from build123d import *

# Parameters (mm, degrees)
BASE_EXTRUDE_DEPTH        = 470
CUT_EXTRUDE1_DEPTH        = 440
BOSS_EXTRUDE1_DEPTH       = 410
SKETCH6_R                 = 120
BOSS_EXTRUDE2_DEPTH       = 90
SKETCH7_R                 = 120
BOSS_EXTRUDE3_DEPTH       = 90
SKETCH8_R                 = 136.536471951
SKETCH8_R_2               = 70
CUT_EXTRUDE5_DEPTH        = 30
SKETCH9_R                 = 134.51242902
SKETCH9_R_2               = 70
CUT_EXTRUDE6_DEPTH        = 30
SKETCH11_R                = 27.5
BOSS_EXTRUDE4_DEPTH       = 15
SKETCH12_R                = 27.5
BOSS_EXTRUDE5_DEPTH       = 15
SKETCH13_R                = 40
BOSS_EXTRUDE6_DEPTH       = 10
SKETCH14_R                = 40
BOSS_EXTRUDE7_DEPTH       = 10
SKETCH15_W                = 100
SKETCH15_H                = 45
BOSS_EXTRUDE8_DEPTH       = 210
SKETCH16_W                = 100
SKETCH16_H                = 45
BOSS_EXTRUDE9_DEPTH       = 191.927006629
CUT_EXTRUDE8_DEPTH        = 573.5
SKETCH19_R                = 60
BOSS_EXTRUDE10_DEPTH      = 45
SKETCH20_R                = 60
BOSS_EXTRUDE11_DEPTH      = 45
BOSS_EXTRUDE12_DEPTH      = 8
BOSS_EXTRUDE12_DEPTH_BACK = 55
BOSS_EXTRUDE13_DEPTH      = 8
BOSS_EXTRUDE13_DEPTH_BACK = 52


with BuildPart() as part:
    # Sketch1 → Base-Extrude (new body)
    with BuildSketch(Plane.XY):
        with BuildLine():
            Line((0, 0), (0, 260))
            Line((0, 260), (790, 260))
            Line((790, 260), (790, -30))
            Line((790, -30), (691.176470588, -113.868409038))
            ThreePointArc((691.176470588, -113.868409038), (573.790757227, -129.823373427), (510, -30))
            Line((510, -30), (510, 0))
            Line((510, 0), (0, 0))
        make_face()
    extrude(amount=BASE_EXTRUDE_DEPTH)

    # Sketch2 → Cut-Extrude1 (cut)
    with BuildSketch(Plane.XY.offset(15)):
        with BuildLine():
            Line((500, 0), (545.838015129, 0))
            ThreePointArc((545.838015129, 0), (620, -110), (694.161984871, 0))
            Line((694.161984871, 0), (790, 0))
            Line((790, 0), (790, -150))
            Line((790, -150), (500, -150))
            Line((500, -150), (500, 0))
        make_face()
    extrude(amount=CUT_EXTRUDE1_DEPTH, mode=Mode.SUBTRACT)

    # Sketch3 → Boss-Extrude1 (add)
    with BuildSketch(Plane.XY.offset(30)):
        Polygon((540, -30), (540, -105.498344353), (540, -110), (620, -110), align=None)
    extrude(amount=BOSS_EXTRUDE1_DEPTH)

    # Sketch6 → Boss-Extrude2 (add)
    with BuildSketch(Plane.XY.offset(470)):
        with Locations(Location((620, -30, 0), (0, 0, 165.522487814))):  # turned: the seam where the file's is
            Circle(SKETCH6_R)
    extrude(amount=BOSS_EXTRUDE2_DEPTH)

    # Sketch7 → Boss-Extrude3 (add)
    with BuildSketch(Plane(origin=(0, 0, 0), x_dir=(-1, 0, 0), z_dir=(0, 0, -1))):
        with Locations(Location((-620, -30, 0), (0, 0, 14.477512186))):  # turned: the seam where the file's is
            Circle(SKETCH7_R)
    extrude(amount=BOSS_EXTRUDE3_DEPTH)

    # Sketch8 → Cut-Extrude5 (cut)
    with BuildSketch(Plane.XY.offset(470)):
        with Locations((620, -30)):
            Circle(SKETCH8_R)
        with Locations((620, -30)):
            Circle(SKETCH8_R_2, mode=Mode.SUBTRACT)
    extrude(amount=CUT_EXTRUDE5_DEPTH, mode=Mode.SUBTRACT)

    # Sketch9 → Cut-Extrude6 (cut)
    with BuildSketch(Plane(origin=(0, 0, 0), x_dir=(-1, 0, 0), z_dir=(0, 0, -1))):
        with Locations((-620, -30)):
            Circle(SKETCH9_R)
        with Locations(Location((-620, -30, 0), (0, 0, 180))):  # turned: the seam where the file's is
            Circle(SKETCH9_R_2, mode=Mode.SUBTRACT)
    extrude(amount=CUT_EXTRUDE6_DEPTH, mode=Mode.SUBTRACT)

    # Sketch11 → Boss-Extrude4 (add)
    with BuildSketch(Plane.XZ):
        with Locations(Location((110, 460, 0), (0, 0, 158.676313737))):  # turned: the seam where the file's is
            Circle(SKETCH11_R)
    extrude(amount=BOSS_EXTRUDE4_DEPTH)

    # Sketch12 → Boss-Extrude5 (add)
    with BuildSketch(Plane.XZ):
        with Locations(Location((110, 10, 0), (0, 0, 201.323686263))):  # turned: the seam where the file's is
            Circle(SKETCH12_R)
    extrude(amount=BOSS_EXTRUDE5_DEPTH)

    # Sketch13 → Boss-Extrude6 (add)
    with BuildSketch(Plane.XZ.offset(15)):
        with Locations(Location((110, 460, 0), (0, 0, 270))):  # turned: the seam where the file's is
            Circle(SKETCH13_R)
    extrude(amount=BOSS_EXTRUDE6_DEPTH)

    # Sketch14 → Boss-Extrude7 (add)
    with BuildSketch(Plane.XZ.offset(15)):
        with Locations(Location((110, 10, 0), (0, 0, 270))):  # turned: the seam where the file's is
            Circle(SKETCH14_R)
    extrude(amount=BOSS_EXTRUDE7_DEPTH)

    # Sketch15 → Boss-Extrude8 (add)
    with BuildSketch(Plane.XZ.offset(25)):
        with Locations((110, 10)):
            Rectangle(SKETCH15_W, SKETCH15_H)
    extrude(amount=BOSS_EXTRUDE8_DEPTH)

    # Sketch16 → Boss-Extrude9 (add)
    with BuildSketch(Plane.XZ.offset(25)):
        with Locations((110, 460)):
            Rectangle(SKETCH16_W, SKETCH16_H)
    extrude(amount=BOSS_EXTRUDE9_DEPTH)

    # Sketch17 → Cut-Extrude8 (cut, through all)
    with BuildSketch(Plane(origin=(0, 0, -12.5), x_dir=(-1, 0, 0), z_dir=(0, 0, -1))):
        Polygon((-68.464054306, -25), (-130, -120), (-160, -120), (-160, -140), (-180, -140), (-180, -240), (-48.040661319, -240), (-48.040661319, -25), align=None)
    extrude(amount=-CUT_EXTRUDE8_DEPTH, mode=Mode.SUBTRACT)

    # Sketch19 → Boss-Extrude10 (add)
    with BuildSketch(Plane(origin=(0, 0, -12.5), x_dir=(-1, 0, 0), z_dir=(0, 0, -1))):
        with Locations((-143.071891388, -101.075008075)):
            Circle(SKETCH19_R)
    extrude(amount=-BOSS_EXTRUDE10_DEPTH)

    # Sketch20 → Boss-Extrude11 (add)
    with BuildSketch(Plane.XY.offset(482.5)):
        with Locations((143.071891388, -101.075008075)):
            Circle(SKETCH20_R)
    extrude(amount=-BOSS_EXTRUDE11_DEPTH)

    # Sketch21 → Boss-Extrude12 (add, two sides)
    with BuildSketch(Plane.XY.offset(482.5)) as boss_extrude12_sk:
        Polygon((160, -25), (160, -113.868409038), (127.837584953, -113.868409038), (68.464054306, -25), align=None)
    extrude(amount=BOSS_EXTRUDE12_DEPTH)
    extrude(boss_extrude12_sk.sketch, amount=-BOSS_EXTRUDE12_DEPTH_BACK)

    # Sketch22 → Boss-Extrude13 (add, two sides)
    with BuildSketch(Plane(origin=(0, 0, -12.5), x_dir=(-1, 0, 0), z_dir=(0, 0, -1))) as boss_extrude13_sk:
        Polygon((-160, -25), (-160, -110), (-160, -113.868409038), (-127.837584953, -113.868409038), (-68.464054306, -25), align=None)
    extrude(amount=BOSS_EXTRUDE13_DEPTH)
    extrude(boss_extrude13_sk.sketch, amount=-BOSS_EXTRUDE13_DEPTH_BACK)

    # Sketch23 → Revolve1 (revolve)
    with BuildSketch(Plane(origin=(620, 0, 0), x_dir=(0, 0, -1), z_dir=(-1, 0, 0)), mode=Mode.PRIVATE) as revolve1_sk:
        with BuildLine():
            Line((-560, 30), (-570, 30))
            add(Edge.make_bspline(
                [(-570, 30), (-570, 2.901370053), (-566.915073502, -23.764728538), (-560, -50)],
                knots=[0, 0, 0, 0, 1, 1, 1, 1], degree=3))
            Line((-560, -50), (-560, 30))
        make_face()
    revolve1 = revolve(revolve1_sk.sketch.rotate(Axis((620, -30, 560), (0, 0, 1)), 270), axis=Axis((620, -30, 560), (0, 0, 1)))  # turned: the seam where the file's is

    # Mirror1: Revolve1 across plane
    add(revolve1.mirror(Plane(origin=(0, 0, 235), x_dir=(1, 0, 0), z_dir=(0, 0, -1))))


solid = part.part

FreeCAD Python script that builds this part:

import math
import FreeCAD as App
import Part
import Sketcher

V = App.Vector

doc = App.newDocument("Part")
body = doc.addObject("PartDesign::Body", "Body")

# Sketch on XY plane
sketch1 = doc.addObject("Sketcher::SketchObject", "Sketch")
body.addObject(sketch1)
sketch1.AttachmentSupport = (doc.XY_Plane, [""])
sketch1.MapMode = "FlatFace"
sketch1.addGeometry(Part.LineSegment(V(0, 260, 0), V(0, 0, 0)), False)
sketch1.addGeometry(Part.LineSegment(V(0, 0, 0), V(510, 0, 0)), False)
sketch1.addGeometry(Part.LineSegment(V(510, 0, 0), V(510, -30, 0)), False)
sketch1.addGeometry(Part.ArcOfCircle(Part.Circle(V(620, -30, 0), V(0, 0, 1), 110), math.radians(180), math.radians(310)), False)
sketch1.addGeometry(Part.LineSegment(V(691, -114, 0), V(790, -30, 0)), False)
sketch1.addGeometry(Part.LineSegment(V(790, -30, 0), V(790, 260, 0)), False)
sketch1.addGeometry(Part.LineSegment(V(790, 260, 0), V(0, 260, 0)), False)
sketch1.addConstraint(Sketcher.Constraint("Coincident", 0, 2, 1, 1))
sketch1.addConstraint(Sketcher.Constraint("Coincident", 1, 2, 2, 1))
sketch1.addConstraint(Sketcher.Constraint("Tangent", 2, 2, 3, 1))
sketch1.addConstraint(Sketcher.Constraint("Tangent", 3, 2, 4, 1))
sketch1.addConstraint(Sketcher.Constraint("Coincident", 4, 2, 5, 1))
sketch1.addConstraint(Sketcher.Constraint("Coincident", 5, 2, 6, 1))
sketch1.addConstraint(Sketcher.Constraint("Coincident", 6, 2, 0, 1))
sketch1.addConstraint(Sketcher.Constraint("Vertical", 0))
sketch1.addConstraint(Sketcher.Constraint("Horizontal", 1))
sketch1.addConstraint(Sketcher.Constraint("Vertical", 2))
sketch1.addConstraint(Sketcher.Constraint("Vertical", 5))
sketch1.addConstraint(Sketcher.Constraint("Horizontal", 6))
sketch1.addConstraint(Sketcher.Constraint("Coincident", 0, 2, -1, 1))
sketch1.addConstraint(Sketcher.Constraint("Horizontal", 2, 2, 4, 2))
sketch1.addConstraint(Sketcher.Constraint("Radius", 3, 110.0))
sketch1.addConstraint(Sketcher.Constraint("DistanceX", 1, 1, 1, 2, 510.0))
sketch1.addConstraint(Sketcher.Constraint("DistanceX", 6, 2, 6, 1, 790.0))
sketch1.addConstraint(Sketcher.Constraint("DistanceY", 0, 2, 0, 1, 260.0))
sketch1.addConstraint(Sketcher.Constraint("DistanceY", 2, 2, 2, 1, 30.0))
pad1 = doc.addObject("PartDesign::Pad", "Pad")
body.addObject(pad1)
pad1.Profile = sketch1
pad1.Length = 470

# Sketch on XY plane
sketch2 = doc.addObject("Sketcher::SketchObject", "Sketch001")
body.addObject(sketch2)
sketch2.AttachmentSupport = (doc.XY_Plane, [""])
sketch2.MapMode = "FlatFace"
sketch2.AttachmentOffset = App.Placement(V(0, 0, 15), App.Rotation())
sketch2.addGeometry(Part.LineSegment(V(546, 0, 0), V(500, 0, 0)), False)
sketch2.addGeometry(Part.LineSegment(V(500, 0, 0), V(500, -150, 0)), False)
sketch2.addGeometry(Part.LineSegment(V(500, -150, 0), V(790, -150, 0)), False)
sketch2.addGeometry(Part.LineSegment(V(790, -150, 0), V(790, 0, 0)), False)
sketch2.addGeometry(Part.LineSegment(V(790, 0, 0), V(694, 0, 0)), False)
sketch2.addGeometry(Part.ArcOfCircle(Part.Circle(V(620, -30, 0), V(0, 0, 1), 80), math.radians(158), math.radians(382)), False)
sketch2.addConstraint(Sketcher.Constraint("Coincident", 0, 2, 1, 1))
sketch2.addConstraint(Sketcher.Constraint("Coincident", 1, 2, 2, 1))
sketch2.addConstraint(Sketcher.Constraint("Coincident", 2, 2, 3, 1))
sketch2.addConstraint(Sketcher.Constraint("Coincident", 3, 2, 4, 1))
sketch2.addConstraint(Sketcher.Constraint("Coincident", 4, 2, 5, 2))
sketch2.addConstraint(Sketcher.Constraint("Coincident", 5, 1, 0, 1))
sketch2.addConstraint(Sketcher.Constraint("Horizontal", 0))
sketch2.addConstraint(Sketcher.Constraint("Vertical", 1))
sketch2.addConstraint(Sketcher.Constraint("Horizontal", 2))
sketch2.addConstraint(Sketcher.Constraint("Vertical", 3))
sketch2.addConstraint(Sketcher.Constraint("Horizontal", 4))
sketch2.addConstraint(Sketcher.Constraint("PointOnObject", 0, 2, -1))
sketch2.addConstraint(Sketcher.Constraint("PointOnObject", 3, 2, -1))
sketch2.addConstraint(Sketcher.Constraint("Radius", 5, 80.0))
sketch2.addConstraint(Sketcher.Constraint("DistanceX", 2, 1, 2, 2, 290.0))
sketch2.addConstraint(Sketcher.Constraint("DistanceY", 1, 2, 1, 1, 150.0))
sketch2.addConstraint(Sketcher.Constraint("DistanceX", -1, 1, 5, 3, 620.0))
sketch2.addConstraint(Sketcher.Constraint("DistanceY", 5, 3, -1, 1, 30.0))
sketch2.addConstraint(Sketcher.Constraint("DistanceX", -1, 1, 0, 2, 500.0))
pocket1 = doc.addObject("PartDesign::Pocket", "Pocket")
body.addObject(pocket1)
pocket1.Profile = sketch2
pocket1.Length = 440
pocket1.Reversed = True

# Sketch on XY plane
sketch3 = doc.addObject("Sketcher::SketchObject", "Sketch002")
body.addObject(sketch3)
sketch3.AttachmentSupport = (doc.XY_Plane, [""])
sketch3.MapMode = "FlatFace"
sketch3.AttachmentOffset = App.Placement(V(0, 0, 30), App.Rotation())
sketch3.addGeometry(Part.LineSegment(V(540, -30, 0), V(540, -110, 0)), False)
sketch3.addGeometry(Part.LineSegment(V(540, -110, 0), V(620, -110, 0)), False)
sketch3.addGeometry(Part.LineSegment(V(620, -110, 0), V(540, -30, 0)), False)
sketch3.addConstraint(Sketcher.Constraint("Coincident", 0, 2, 1, 1))
sketch3.addConstraint(Sketcher.Constraint("Coincident", 1, 2, 2, 1))
sketch3.addConstraint(Sketcher.Constraint("Coincident", 2, 2, 0, 1))
sketch3.addConstraint(Sketcher.Constraint("Vertical", 0))
sketch3.addConstraint(Sketcher.Constraint("Horizontal", 1))
sketch3.addConstraint(Sketcher.Constraint("Equal", 1, 0))
sketch3.addConstraint(Sketcher.Constraint("DistanceX", 1, 1, 1, 2, 80.0))
sketch3.addConstraint(Sketcher.Constraint("DistanceX", -1, 1, 0, 2, 540.0))
sketch3.addConstraint(Sketcher.Constraint("DistanceY", 0, 2, -1, 1, 110.0))
pad2 = doc.addObject("PartDesign::Pad", "Pad001")
body.addObject(pad2)
pad2.Profile = sketch3
pad2.Length = 410

# Sketch on XY plane
sketch4 = doc.addObject("Sketcher::SketchObject", "Sketch003")
body.addObject(sketch4)
sketch4.AttachmentSupport = (doc.XY_Plane, [""])
sketch4.MapMode = "FlatFace"
sketch4.AttachmentOffset = App.Placement(V(0, 0, 470), App.Rotation())
sketch4.addGeometry(Part.Circle(V(620, -30, 0), V(0, 0, 1), 120), False)
sketch4.addConstraint(Sketcher.Constraint("Diameter", 0, 240.0))
sketch4.addConstraint(Sketcher.Constraint("DistanceX", -1, 1, 0, 3, 620.0))
sketch4.addConstraint(Sketcher.Constraint("DistanceY", 0, 3, -1, 1, 30.0))
pad3 = doc.addObject("PartDesign::Pad", "Pad002")
body.addObject(pad3)
pad3.Profile = sketch4
pad3.Length = 90

# Sketch on XY plane
sketch5 = doc.addObject("Sketcher::SketchObject", "Sketch004")
body.addObject(sketch5)
sketch5.AttachmentSupport = (doc.XY_Plane, [""])
sketch5.MapMode = "FlatFace"
sketch5.addGeometry(Part.Circle(V(620, -30, 0), V(0, 0, 1), 120), False)
sketch5.addConstraint(Sketcher.Constraint("Diameter", 0, 240.0))
sketch5.addConstraint(Sketcher.Constraint("DistanceX", -1, 1, 0, 3, 620.0))
sketch5.addConstraint(Sketcher.Constraint("DistanceY", 0, 3, -1, 1, 30.0))
pad4 = doc.addObject("PartDesign::Pad", "Pad003")
body.addObject(pad4)
pad4.Profile = sketch5
pad4.Length = 90
pad4.Reversed = True

# Sketch on XY plane
sketch6 = doc.addObject("Sketcher::SketchObject", "Sketch005")
body.addObject(sketch6)
sketch6.AttachmentSupport = (doc.XY_Plane, [""])
sketch6.MapMode = "FlatFace"
sketch6.AttachmentOffset = App.Placement(V(0, 0, 470), App.Rotation())
sketch6.addGeometry(Part.Circle(V(620, -30, 0), V(0, 0, 1), 137), False)
sketch6.addGeometry(Part.Circle(V(620, -30, 0), V(0, 0, 1), 70), False)
sketch6.addConstraint(Sketcher.Constraint("Coincident", 1, 3, 0, 3))
sketch6.addConstraint(Sketcher.Constraint("Diameter", 1, 140.0))
sketch6.addConstraint(Sketcher.Constraint("DistanceX", -1, 1, 0, 3, 620.0))
sketch6.addConstraint(Sketcher.Constraint("DistanceY", 0, 3, -1, 1, 30.0))
sketch6.addConstraint(Sketcher.Constraint("Diameter", 0, 273.072944))
pocket2 = doc.addObject("PartDesign::Pocket", "Pocket001")
body.addObject(pocket2)
pocket2.Profile = sketch6
pocket2.Length = 30
pocket2.Reversed = True

# Sketch on XY plane
sketch7 = doc.addObject("Sketcher::SketchObject", "Sketch006")
body.addObject(sketch7)
sketch7.AttachmentSupport = (doc.XY_Plane, [""])
sketch7.MapMode = "FlatFace"
sketch7.addGeometry(Part.Circle(V(620, -30, 0), V(0, 0, 1), 135), False)
sketch7.addGeometry(Part.Circle(V(620, -30, 0), V(0, 0, 1), 70), False)
sketch7.addConstraint(Sketcher.Constraint("Coincident", 1, 3, 0, 3))
sketch7.addConstraint(Sketcher.Constraint("Diameter", 1, 140.0))
sketch7.addConstraint(Sketcher.Constraint("DistanceX", -1, 1, 0, 3, 620.0))
sketch7.addConstraint(Sketcher.Constraint("DistanceY", 0, 3, -1, 1, 30.0))
sketch7.addConstraint(Sketcher.Constraint("Diameter", 0, 269.024858))
pocket3 = doc.addObject("PartDesign::Pocket", "Pocket002")
body.addObject(pocket3)
pocket3.Profile = sketch7
pocket3.Length = 30

# Sketch on XZ plane
sketch8 = doc.addObject("Sketcher::SketchObject", "Sketch007")
body.addObject(sketch8)
sketch8.AttachmentSupport = (doc.XZ_Plane, [""])
sketch8.MapMode = "FlatFace"
sketch8.addGeometry(Part.Circle(V(110, 460, 0), V(0, 0, 1), 28), False)
sketch8.addConstraint(Sketcher.Constraint("Diameter", 0, 55.0))
sketch8.addConstraint(Sketcher.Constraint("DistanceX", -1, 1, 0, 3, 110.0))
sketch8.addConstraint(Sketcher.Constraint("DistanceY", -1, 1, 0, 3, 460.0))
pad5 = doc.addObject("PartDesign::Pad", "Pad004")
body.addObject(pad5)
pad5.Profile = sketch8
pad5.Length = 15

# Sketch on XZ plane
sketch9 = doc.addObject("Sketcher::SketchObject", "Sketch008")
body.addObject(sketch9)
sketch9.AttachmentSupport = (doc.XZ_Plane, [""])
sketch9.MapMode = "FlatFace"
sketch9.addGeometry(Part.Circle(V(110, 10, 0), V(0, 0, 1), 28), False)
sketch9.addConstraint(Sketcher.Constraint("Diameter", 0, 55.0))
sketch9.addConstraint(Sketcher.Constraint("DistanceX", -1, 1, 0, 3, 110.0))
sketch9.addConstraint(Sketcher.Constraint("DistanceY", -1, 1, 0, 3, 10.0))
pad6 = doc.addObject("PartDesign::Pad", "Pad005")
body.addObject(pad6)
pad6.Profile = sketch9
pad6.Length = 15

# Sketch on XZ plane
sketch10 = doc.addObject("Sketcher::SketchObject", "Sketch009")
body.addObject(sketch10)
sketch10.AttachmentSupport = (doc.XZ_Plane, [""])
sketch10.MapMode = "FlatFace"
sketch10.AttachmentOffset = App.Placement(V(0, 0, 15), App.Rotation())
sketch10.addGeometry(Part.Circle(V(110, 460, 0), V(0, 0, 1), 40), False)
sketch10.addConstraint(Sketcher.Constraint("Diameter", 0, 80.0))
sketch10.addConstraint(Sketcher.Constraint("DistanceX", -1, 1, 0, 3, 110.0))
sketch10.addConstraint(Sketcher.Constraint("DistanceY", -1, 1, 0, 3, 460.0))
pad7 = doc.addObject("PartDesign::Pad", "Pad006")
body.addObject(pad7)
pad7.Profile = sketch10
pad7.Length = 10

# Sketch on XZ plane
sketch11 = doc.addObject("Sketcher::SketchObject", "Sketch010")
body.addObject(sketch11)
sketch11.AttachmentSupport = (doc.XZ_Plane, [""])
sketch11.MapMode = "FlatFace"
sketch11.AttachmentOffset = App.Placement(V(0, 0, 15), App.Rotation())
sketch11.addGeometry(Part.Circle(V(110, 10, 0), V(0, 0, 1), 40), False)
sketch11.addConstraint(Sketcher.Constraint("Diameter", 0, 80.0))
sketch11.addConstraint(Sketcher.Constraint("DistanceX", -1, 1, 0, 3, 110.0))
sketch11.addConstraint(Sketcher.Constraint("DistanceY", -1, 1, 0, 3, 10.0))
pad8 = doc.addObject("PartDesign::Pad", "Pad007")
body.addObject(pad8)
pad8.Profile = sketch11
pad8.Length = 10

# Sketch on XZ plane
sketch12 = doc.addObject("Sketcher::SketchObject", "Sketch011")
body.addObject(sketch12)
sketch12.AttachmentSupport = (doc.XZ_Plane, [""])
sketch12.MapMode = "FlatFace"
sketch12.AttachmentOffset = App.Placement(V(0, 0, 25), App.Rotation())
sketch12.addGeometry(Part.LineSegment(V(60, 32, 0), V(60, -12, 0)), False)
sketch12.addGeometry(Part.LineSegment(V(60, -12, 0), V(160, -12, 0)), False)
sketch12.addGeometry(Part.LineSegment(V(160, -12, 0), V(160, 32, 0)), False)
sketch12.addGeometry(Part.LineSegment(V(160, 32, 0), V(60, 32, 0)), False)
sketch12.addConstraint(Sketcher.Constraint("Coincident", 0, 2, 1, 1))
sketch12.addConstraint(Sketcher.Constraint("Coincident", 1, 2, 2, 1))
sketch12.addConstraint(Sketcher.Constraint("Coincident", 2, 2, 3, 1))
sketch12.addConstraint(Sketcher.Constraint("Coincident", 3, 2, 0, 1))
sketch12.addConstraint(Sketcher.Constraint("Vertical", 0))
sketch12.addConstraint(Sketcher.Constraint("Horizontal", 1))
sketch12.addConstraint(Sketcher.Constraint("Vertical", 2))
sketch12.addConstraint(Sketcher.Constraint("Horizontal", 3))
sketch12.addConstraint(Sketcher.Constraint("DistanceX", 1, 1, 1, 2, 100.0))
sketch12.addConstraint(Sketcher.Constraint("DistanceY", 0, 2, 0, 1, 45.0))
sketch12.addConstraint(Sketcher.Constraint("DistanceX", -1, 1, 0, 2, 60.0))
sketch12.addConstraint(Sketcher.Constraint("DistanceY", 0, 2, -1, 1, 12.5))
pad9 = doc.addObject("PartDesign::Pad", "Pad008")
body.addObject(pad9)
pad9.Profile = sketch12
pad9.Length = 210

# Sketch on XZ plane
sketch13 = doc.addObject("Sketcher::SketchObject", "Sketch012")
body.addObject(sketch13)
sketch13.AttachmentSupport = (doc.XZ_Plane, [""])
sketch13.MapMode = "FlatFace"
sketch13.AttachmentOffset = App.Placement(V(0, 0, 25), App.Rotation())
sketch13.addGeometry(Part.LineSegment(V(60, 482, 0), V(60, 438, 0)), False)
sketch13.addGeometry(Part.LineSegment(V(60, 438, 0), V(160, 438, 0)), False)
sketch13.addGeometry(Part.LineSegment(V(160, 438, 0), V(160, 482, 0)), False)
sketch13.addGeometry(Part.LineSegment(V(160, 482, 0), V(60, 482, 0)), False)
sketch13.addConstraint(Sketcher.Constraint("Coincident", 0, 2, 1, 1))
sketch13.addConstraint(Sketcher.Constraint("Coincident", 1, 2, 2, 1))
sketch13.addConstraint(Sketcher.Constraint("Coincident", 2, 2, 3, 1))
sketch13.addConstraint(Sketcher.Constraint("Coincident", 3, 2, 0, 1))
sketch13.addConstraint(Sketcher.Constraint("Vertical", 0))
sketch13.addConstraint(Sketcher.Constraint("Horizontal", 1))
sketch13.addConstraint(Sketcher.Constraint("Vertical", 2))
sketch13.addConstraint(Sketcher.Constraint("Horizontal", 3))
sketch13.addConstraint(Sketcher.Constraint("DistanceX", 1, 1, 1, 2, 100.0))
sketch13.addConstraint(Sketcher.Constraint("DistanceY", 0, 2, 0, 1, 45.0))
sketch13.addConstraint(Sketcher.Constraint("DistanceX", -1, 1, 0, 2, 60.0))
sketch13.addConstraint(Sketcher.Constraint("DistanceY", -1, 1, 0, 2, 437.5))
pad10 = doc.addObject("PartDesign::Pad", "Pad009")
body.addObject(pad10)
pad10.Profile = sketch13
pad10.Length = 191.927007

# Sketch on XY plane
sketch14 = doc.addObject("Sketcher::SketchObject", "Sketch013")
body.addObject(sketch14)
sketch14.AttachmentSupport = (doc.XY_Plane, [""])
sketch14.MapMode = "FlatFace"
sketch14.AttachmentOffset = App.Placement(V(0, 0, -12.5), App.Rotation())
sketch14.addGeometry(Part.LineSegment(V(68, -25, 0), V(130, -120, 0)), False)
sketch14.addGeometry(Part.LineSegment(V(130, -120, 0), V(160, -120, 0)), False)
sketch14.addGeometry(Part.LineSegment(V(160, -120, 0), V(160, -140, 0)), False)
sketch14.addGeometry(Part.LineSegment(V(160, -140, 0), V(180, -140, 0)), False)
sketch14.addGeometry(Part.LineSegment(V(180, -140, 0), V(180, -240, 0)), False)
sketch14.addGeometry(Part.LineSegment(V(180, -240, 0), V(48, -240, 0)), False)
sketch14.addGeometry(Part.LineSegment(V(48, -240, 0), V(48, -25, 0)), False)
sketch14.addGeometry(Part.LineSegment(V(48, -25, 0), V(68, -25, 0)), False)
sketch14.addConstraint(Sketcher.Constraint("Coincident", 0, 2, 1, 1))
sketch14.addConstraint(Sketcher.Constraint("Coincident", 1, 2, 2, 1))
sketch14.addConstraint(Sketcher.Constraint("Coincident", 2, 2, 3, 1))
sketch14.addConstraint(Sketcher.Constraint("Coincident", 3, 2, 4, 1))
sketch14.addConstraint(Sketcher.Constraint("Coincident", 4, 2, 5, 1))
sketch14.addConstraint(Sketcher.Constraint("Coincident", 5, 2, 6, 1))
sketch14.addConstraint(Sketcher.Constraint("Coincident", 6, 2, 7, 1))
sketch14.addConstraint(Sketcher.Constraint("Coincident", 7, 2, 0, 1))
sketch14.addConstraint(Sketcher.Constraint("Horizontal", 1))
sketch14.addConstraint(Sketcher.Constraint("Vertical", 2))
sketch14.addConstraint(Sketcher.Constraint("Horizontal", 3))
sketch14.addConstraint(Sketcher.Constraint("Vertical", 4))
sketch14.addConstraint(Sketcher.Constraint("Horizontal", 5))
sketch14.addConstraint(Sketcher.Constraint("Vertical", 6))
sketch14.addConstraint(Sketcher.Constraint("Horizontal", 7))
sketch14.addConstraint(Sketcher.Constraint("Equal", 3, 2))
sketch14.addConstraint(Sketcher.Constraint("DistanceX", 1, 1, 1, 2, 30.0))
sketch14.addConstraint(Sketcher.Constraint("DistanceX", 3, 1, 3, 2, 20.0))
sketch14.addConstraint(Sketcher.Constraint("DistanceY", 4, 2, 4, 1, 100.0))
sketch14.addConstraint(Sketcher.Constraint("DistanceY", 6, 1, 6, 2, 215.0))
sketch14.addConstraint(Sketcher.Constraint("DistanceX", -1, 1, 0, 2, 130.0))
sketch14.addConstraint(Sketcher.Constraint("DistanceY", 0, 2, -1, 1, 120.0))
sketch14.addConstraint(Sketcher.Constraint("DistanceX", 5, 2, 5, 1, 131.959339))
sketch14.addConstraint(Sketcher.Constraint("Distance", 0, 113.188659))
pocket4 = doc.addObject("PartDesign::Pocket", "Pocket003")
body.addObject(pocket4)
pocket4.Profile = sketch14
pocket4.Type = "ThroughAll"
pocket4.Reversed = True

# Sketch on XY plane
sketch15 = doc.addObject("Sketcher::SketchObject", "Sketch014")
body.addObject(sketch15)
sketch15.AttachmentSupport = (doc.XY_Plane, [""])
sketch15.MapMode = "FlatFace"
sketch15.AttachmentOffset = App.Placement(V(0, 0, -12.5), App.Rotation())
sketch15.addGeometry(Part.Circle(V(143, -101, 0), V(0, 0, 1), 60), False)
sketch15.addConstraint(Sketcher.Constraint("Diameter", 0, 120.0))
sketch15.addConstraint(Sketcher.Constraint("DistanceX", -1, 1, 0, 3, 143.071891))
sketch15.addConstraint(Sketcher.Constraint("DistanceY", 0, 3, -1, 1, 101.075008))
pad11 = doc.addObject("PartDesign::Pad", "Pad010")
body.addObject(pad11)
pad11.Profile = sketch15
pad11.Length = 45

# Sketch on XY plane
sketch16 = doc.addObject("Sketcher::SketchObject", "Sketch015")
body.addObject(sketch16)
sketch16.AttachmentSupport = (doc.XY_Plane, [""])
sketch16.MapMode = "FlatFace"
sketch16.AttachmentOffset = App.Placement(V(0, 0, 482.5), App.Rotation())
sketch16.addGeometry(Part.Circle(V(143, -101, 0), V(0, 0, 1), 60), False)
sketch16.addConstraint(Sketcher.Constraint("Diameter", 0, 120.0))
sketch16.addConstraint(Sketcher.Constraint("DistanceX", -1, 1, 0, 3, 143.071891))
sketch16.addConstraint(Sketcher.Constraint("DistanceY", 0, 3, -1, 1, 101.075008))
pad12 = doc.addObject("PartDesign::Pad", "Pad011")
body.addObject(pad12)
pad12.Profile = sketch16
pad12.Length = 45
pad12.Reversed = True

# Sketch on XY plane
sketch17 = doc.addObject("Sketcher::SketchObject", "Sketch016")
body.addObject(sketch17)
sketch17.AttachmentSupport = (doc.XY_Plane, [""])
sketch17.MapMode = "FlatFace"
sketch17.AttachmentOffset = App.Placement(V(0, 0, 482.5), App.Rotation())
sketch17.addGeometry(Part.LineSegment(V(160, -114, 0), V(160, -25, 0)), False)
sketch17.addGeometry(Part.LineSegment(V(160, -25, 0), V(68, -25, 0)), False)
sketch17.addGeometry(Part.LineSegment(V(68, -25, 0), V(128, -114, 0)), False)
sketch17.addGeometry(Part.LineSegment(V(128, -114, 0), V(160, -114, 0)), False)
sketch17.addConstraint(Sketcher.Constraint("Coincident", 0, 2, 1, 1))
sketch17.addConstraint(Sketcher.Constraint("Coincident", 1, 2, 2, 1))
sketch17.addConstraint(Sketcher.Constraint("Coincident", 2, 2, 3, 1))
sketch17.addConstraint(Sketcher.Constraint("Coincident", 3, 2, 0, 1))
sketch17.addConstraint(Sketcher.Constraint("Vertical", 0))
sketch17.addConstraint(Sketcher.Constraint("Horizontal", 1))
sketch17.addConstraint(Sketcher.Constraint("Horizontal", 3))
sketch17.addConstraint(Sketcher.Constraint("DistanceX", -1, 1, 0, 2, 160.0))
sketch17.addConstraint(Sketcher.Constraint("DistanceY", 0, 2, -1, 1, 25.0))
sketch17.addConstraint(Sketcher.Constraint("DistanceY", 0, 1, 0, 2, 88.868409))
sketch17.addConstraint(Sketcher.Constraint("DistanceX", 1, 2, 1, 1, 91.535946))
sketch17.addConstraint(Sketcher.Constraint("DistanceX", 3, 1, 3, 2, 32.162415))
pad13 = doc.addObject("PartDesign::Pad", "Pad012")
body.addObject(pad13)
pad13.Profile = sketch17
pad13.Type = "TwoLengths"
pad13.Length = 8
pad13.Length2 = 55

# Sketch on XY plane
sketch18 = doc.addObject("Sketcher::SketchObject", "Sketch017")
body.addObject(sketch18)
sketch18.AttachmentSupport = (doc.XY_Plane, [""])
sketch18.MapMode = "FlatFace"
sketch18.AttachmentOffset = App.Placement(V(0, 0, -12.5), App.Rotation())
sketch18.addGeometry(Part.LineSegment(V(160, -25, 0), V(160, -114, 0)), False)
sketch18.addGeometry(Part.LineSegment(V(160, -114, 0), V(128, -114, 0)), False)
sketch18.addGeometry(Part.LineSegment(V(128, -114, 0), V(68, -25, 0)), False)
sketch18.addGeometry(Part.LineSegment(V(68, -25, 0), V(160, -25, 0)), False)
sketch18.addConstraint(Sketcher.Constraint("Coincident", 0, 2, 1, 1))
sketch18.addConstraint(Sketcher.Constraint("Coincident", 1, 2, 2, 1))
sketch18.addConstraint(Sketcher.Constraint("Coincident", 2, 2, 3, 1))
sketch18.addConstraint(Sketcher.Constraint("Coincident", 3, 2, 0, 1))
sketch18.addConstraint(Sketcher.Constraint("Vertical", 0))
sketch18.addConstraint(Sketcher.Constraint("Horizontal", 1))
sketch18.addConstraint(Sketcher.Constraint("Horizontal", 3))
sketch18.addConstraint(Sketcher.Constraint("DistanceX", -1, 1, 0, 2, 160.0))
sketch18.addConstraint(Sketcher.Constraint("DistanceY", 2, 2, -1, 1, 25.0))
sketch18.addConstraint(Sketcher.Constraint("DistanceY", 0, 2, 0, 1, 88.868409))
sketch18.addConstraint(Sketcher.Constraint("DistanceX", 1, 2, 1, 1, 32.162415))
sketch18.addConstraint(Sketcher.Constraint("DistanceX", 3, 1, 3, 2, 91.535946))
pad14 = doc.addObject("PartDesign::Pad", "Pad013")
body.addObject(pad14)
pad14.Profile = sketch18
pad14.Type = "TwoLengths"
pad14.Length = 8
pad14.Length2 = 52
pad14.Reversed = True

# Sketch on YZ plane
sketch19 = doc.addObject("Sketcher::SketchObject", "Sketch018")
body.addObject(sketch19)
sketch19.AttachmentSupport = (doc.YZ_Plane, [""])
sketch19.MapMode = "FlatFace"
sketch19.AttachmentOffset = App.Placement(V(0, 0, 620), App.Rotation())
sketch19.addGeometry(Part.LineSegment(V(-30, 560, 0), V(-30, 570, 0)), False)
sketch19.addGeometry(Part.BSplineCurve([V(-30, 570, 0), V(-2.90137, 570, 0), V(23.764729, 566.915074, 0), V(50, 560, 0)], [4, 4], [0, 1], False, 3, [1, 1, 1, 1], False), False)
sketch19.addGeometry(Part.LineSegment(V(50, 560, 0), V(-30, 560, 0)), False)
sketch19.addGeometry(Part.LineSegment(V(-30, 560, 0), V(-30, 570, 0)), True)  # axis
sketch19.addConstraint(Sketcher.Constraint("Block", 1))
sketch19.addConstraint(Sketcher.Constraint("Coincident", 0, 2, 1, 1))
sketch19.addConstraint(Sketcher.Constraint("Coincident", 1, 2, 2, 1))
sketch19.addConstraint(Sketcher.Constraint("Coincident", 2, 2, 0, 1))
sketch19.addConstraint(Sketcher.Constraint("Vertical", 0))
sketch19.addConstraint(Sketcher.Constraint("Horizontal", 2))
sketch19.addConstraint(Sketcher.Constraint("Vertical", 3))
sketch19.addConstraint(Sketcher.Constraint("Coincident", 3, 1, 2, 2))
sketch19.addConstraint(Sketcher.Constraint("Equal", 0, 3))
revolution = doc.addObject("PartDesign::Revolution", "Revolution")
body.addObject(revolution)
revolution.Profile = sketch19
revolution.ReferenceAxis = (sketch19, ["Axis0"])
revolution.Angle = 360
doc.recompute()

datumplane = doc.addObject("PartDesign::Plane", "DatumPlane")
body.addObject(datumplane)
datumplane.AttachmentSupport = (doc.XY_Plane, [""])
datumplane.MapMode = "FlatFace"
datumplane.AttachmentOffset = App.Placement(V(0, 0, 235), App.Rotation())
mirrored = doc.addObject("PartDesign::Mirrored", "Mirrored")
body.addObject(mirrored)
mirrored.Originals = [revolution]
mirrored.MirrorPlane = (datumplane, [""])
body.Tip = mirrored

doc.recompute()
